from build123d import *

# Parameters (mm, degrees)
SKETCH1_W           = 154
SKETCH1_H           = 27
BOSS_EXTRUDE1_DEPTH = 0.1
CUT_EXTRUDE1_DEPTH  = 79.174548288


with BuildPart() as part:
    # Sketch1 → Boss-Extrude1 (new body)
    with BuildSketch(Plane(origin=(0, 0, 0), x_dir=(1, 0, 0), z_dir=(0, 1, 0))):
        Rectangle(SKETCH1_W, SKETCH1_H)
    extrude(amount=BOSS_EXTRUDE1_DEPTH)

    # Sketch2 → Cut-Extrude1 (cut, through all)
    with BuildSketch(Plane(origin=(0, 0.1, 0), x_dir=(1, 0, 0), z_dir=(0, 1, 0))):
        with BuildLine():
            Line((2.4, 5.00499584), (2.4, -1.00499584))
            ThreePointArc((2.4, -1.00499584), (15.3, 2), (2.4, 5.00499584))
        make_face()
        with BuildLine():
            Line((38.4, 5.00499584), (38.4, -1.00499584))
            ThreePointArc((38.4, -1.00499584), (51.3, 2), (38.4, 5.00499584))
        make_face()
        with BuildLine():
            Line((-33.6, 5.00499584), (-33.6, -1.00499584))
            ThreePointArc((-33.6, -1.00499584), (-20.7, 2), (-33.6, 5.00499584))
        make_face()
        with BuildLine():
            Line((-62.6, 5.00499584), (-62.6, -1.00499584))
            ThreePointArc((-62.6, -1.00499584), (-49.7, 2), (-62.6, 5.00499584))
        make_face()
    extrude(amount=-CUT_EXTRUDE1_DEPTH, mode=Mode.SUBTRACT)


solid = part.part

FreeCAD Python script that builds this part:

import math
import FreeCAD as App
import Part
import Sketcher
from FreeCAD import Vector


def add_polygon(sketch, points):
    """Adds a closed chain of lines whose ends are joined by coincident constraints."""
    first, n = sketch.GeometryCount, len(points)
    for a, b in zip(points, points[1:] + points[:1]):
        sketch.addGeometry(Part.LineSegment(App.Vector(*a, 0), App.Vector(*b, 0)), False)
    for i in range(n):
        sketch.addConstraint(Sketcher.Constraint("Coincident", first + i, 2, first + (i + 1) % n, 1))

doc = App.newDocument("Part")
body = doc.addObject("PartDesign::Body", "Body")

sketch1 = body.newObject("Sketcher::SketchObject", "Sketch")
sketch1.AttachmentSupport = (doc.getObject("XZ_Plane"), [""])
sketch1.MapMode = "FlatFace"
add_polygon(sketch1, [(-77, -13.5), (-77, 13.5), (77, 13.5), (77, -13.5)])
sketch1.addConstraint([
    Sketcher.Constraint("Vertical", 0),
    Sketcher.Constraint("Horizontal", 1),
    Sketcher.Constraint("Vertical", 2),
    Sketcher.Constraint("Horizontal", 3),
    Sketcher.Constraint("Symmetric", 0, 2, 2, 2, -1, 1),
    Sketcher.Constraint("DistanceX", 1, 1, 1, 2, 154.0),
    Sketcher.Constraint("DistanceY", 0, 1, 0, 2, 27.0),
])
pad1 = body.newObject("PartDesign::Pad", "Pad")
pad1.Profile = sketch1
pad1.Length = 0.1
pad1.Reversed = True

sketch2 = body.newObject("Sketcher::SketchObject", "Sketch001")
sketch2.AttachmentSupport = (doc.getObject("XZ_Plane"), [""])
sketch2.MapMode = "FlatFace"
sketch2.AttachmentOffset = App.Placement(Vector(0, 0, -0.1), App.Rotation())
sketch2.addGeometry([
    Part.LineSegment(Vector(2.4, -5.004996, 0), Vector(2.4, 1.004996, 0)),
    Part.ArcOfCircle(Part.Circle(Vector(8.5, -2, 0), Vector(0, 0, 1), 6.8), math.radians(-153.774116), math.radians(153.774116)),
    Part.LineSegment(Vector(38.4, -5.004996, 0), Vector(38.4, 1.004996, 0)),
    Part.ArcOfCircle(Part.Circle(Vector(44.5, -2, 0), Vector(0, 0, 1), 6.8), math.radians(-153.774116), math.radians(153.774116)),
    Part.LineSegment(Vector(-33.6, -5.004996, 0), Vector(-33.6, 1.004996, 0)),
    Part.ArcOfCircle(Part.Circle(Vector(-27.5, -2, 0), Vector(0, 0, 1), 6.8), math.radians(-153.774116), math.radians(153.774116)),
    Part.LineSegment(Vector(-62.6, -5.004996, 0), Vector(-62.6, 1.004996, 0)),
    Part.ArcOfCircle(Part.Circle(Vector(-56.5, -2, 0), Vector(0, 0, 1), 6.8), math.radians(-153.774116), math.radians(153.774116)),
], False)
sketch2.addConstraint([
    Sketcher.Constraint("Coincident", 0, 1, 1, 1),
    Sketcher.Constraint("Coincident", 1, 2, 0, 2),
    Sketcher.Constraint("Coincident", 2, 1, 3, 1),
    Sketcher.Constraint("Coincident", 3, 2, 2, 2),
    Sketcher.Constraint("Coincident", 4, 1, 5, 1),
    Sketcher.Constraint("Coincident", 5, 2, 4, 2),
    Sketcher.Constraint("Coincident", 6, 1, 7, 1),
    Sketcher.Constraint("Coincident", 7, 2, 6, 2),
    Sketcher.Constraint("Vertical", 0),
    Sketcher.Constraint("Vertical", 2),
    Sketcher.Constraint("Vertical", 4),
    Sketcher.Constraint("Vertical", 6),
    Sketcher.Constraint("Equal", 1, 3),
    Sketcher.Constraint("Equal", 3, 5),
    Sketcher.Constraint("Equal", 5, 7),
    Sketcher.Constraint("Horizontal", 1, 3, 3, 3),
    Sketcher.Constraint("Horizontal", 3, 3, 5, 3),
    Sketcher.Constraint("Horizontal", 5, 3, 7, 3),
    Sketcher.Constraint("Horizontal", 0, 1, 2, 1),
    Sketcher.Constraint("Horizontal", 2, 1, 4, 1),
    Sketcher.Constraint("Horizontal", 4, 1, 6, 1),
    Sketcher.Constraint("Radius", 1, 6.8),
    Sketcher.Constraint("DistanceY", 1, 3, -1, 1, 2.0),
    Sketcher.Constraint("DistanceX", 1, 3, 3, 3, 36.0),
    Sketcher.Constraint("DistanceX", 5, 3, 1, 3, 36.0),
    Sketcher.Constraint("DistanceX", 7, 3, 5, 3, 29.0),
    Sketcher.Constraint("DistanceX", -1, 1, 1, 3, 8.5),
    Sketcher.Constraint("DistanceX", -1, 1, 0, 1, 2.4),
])
pocket1 = body.newObject("PartDesign::Pocket", "Pocket")
pocket1.Profile = sketch2
pocket1.Type = "ThroughAll"
pocket1.Reversed = True

doc.recompute()
